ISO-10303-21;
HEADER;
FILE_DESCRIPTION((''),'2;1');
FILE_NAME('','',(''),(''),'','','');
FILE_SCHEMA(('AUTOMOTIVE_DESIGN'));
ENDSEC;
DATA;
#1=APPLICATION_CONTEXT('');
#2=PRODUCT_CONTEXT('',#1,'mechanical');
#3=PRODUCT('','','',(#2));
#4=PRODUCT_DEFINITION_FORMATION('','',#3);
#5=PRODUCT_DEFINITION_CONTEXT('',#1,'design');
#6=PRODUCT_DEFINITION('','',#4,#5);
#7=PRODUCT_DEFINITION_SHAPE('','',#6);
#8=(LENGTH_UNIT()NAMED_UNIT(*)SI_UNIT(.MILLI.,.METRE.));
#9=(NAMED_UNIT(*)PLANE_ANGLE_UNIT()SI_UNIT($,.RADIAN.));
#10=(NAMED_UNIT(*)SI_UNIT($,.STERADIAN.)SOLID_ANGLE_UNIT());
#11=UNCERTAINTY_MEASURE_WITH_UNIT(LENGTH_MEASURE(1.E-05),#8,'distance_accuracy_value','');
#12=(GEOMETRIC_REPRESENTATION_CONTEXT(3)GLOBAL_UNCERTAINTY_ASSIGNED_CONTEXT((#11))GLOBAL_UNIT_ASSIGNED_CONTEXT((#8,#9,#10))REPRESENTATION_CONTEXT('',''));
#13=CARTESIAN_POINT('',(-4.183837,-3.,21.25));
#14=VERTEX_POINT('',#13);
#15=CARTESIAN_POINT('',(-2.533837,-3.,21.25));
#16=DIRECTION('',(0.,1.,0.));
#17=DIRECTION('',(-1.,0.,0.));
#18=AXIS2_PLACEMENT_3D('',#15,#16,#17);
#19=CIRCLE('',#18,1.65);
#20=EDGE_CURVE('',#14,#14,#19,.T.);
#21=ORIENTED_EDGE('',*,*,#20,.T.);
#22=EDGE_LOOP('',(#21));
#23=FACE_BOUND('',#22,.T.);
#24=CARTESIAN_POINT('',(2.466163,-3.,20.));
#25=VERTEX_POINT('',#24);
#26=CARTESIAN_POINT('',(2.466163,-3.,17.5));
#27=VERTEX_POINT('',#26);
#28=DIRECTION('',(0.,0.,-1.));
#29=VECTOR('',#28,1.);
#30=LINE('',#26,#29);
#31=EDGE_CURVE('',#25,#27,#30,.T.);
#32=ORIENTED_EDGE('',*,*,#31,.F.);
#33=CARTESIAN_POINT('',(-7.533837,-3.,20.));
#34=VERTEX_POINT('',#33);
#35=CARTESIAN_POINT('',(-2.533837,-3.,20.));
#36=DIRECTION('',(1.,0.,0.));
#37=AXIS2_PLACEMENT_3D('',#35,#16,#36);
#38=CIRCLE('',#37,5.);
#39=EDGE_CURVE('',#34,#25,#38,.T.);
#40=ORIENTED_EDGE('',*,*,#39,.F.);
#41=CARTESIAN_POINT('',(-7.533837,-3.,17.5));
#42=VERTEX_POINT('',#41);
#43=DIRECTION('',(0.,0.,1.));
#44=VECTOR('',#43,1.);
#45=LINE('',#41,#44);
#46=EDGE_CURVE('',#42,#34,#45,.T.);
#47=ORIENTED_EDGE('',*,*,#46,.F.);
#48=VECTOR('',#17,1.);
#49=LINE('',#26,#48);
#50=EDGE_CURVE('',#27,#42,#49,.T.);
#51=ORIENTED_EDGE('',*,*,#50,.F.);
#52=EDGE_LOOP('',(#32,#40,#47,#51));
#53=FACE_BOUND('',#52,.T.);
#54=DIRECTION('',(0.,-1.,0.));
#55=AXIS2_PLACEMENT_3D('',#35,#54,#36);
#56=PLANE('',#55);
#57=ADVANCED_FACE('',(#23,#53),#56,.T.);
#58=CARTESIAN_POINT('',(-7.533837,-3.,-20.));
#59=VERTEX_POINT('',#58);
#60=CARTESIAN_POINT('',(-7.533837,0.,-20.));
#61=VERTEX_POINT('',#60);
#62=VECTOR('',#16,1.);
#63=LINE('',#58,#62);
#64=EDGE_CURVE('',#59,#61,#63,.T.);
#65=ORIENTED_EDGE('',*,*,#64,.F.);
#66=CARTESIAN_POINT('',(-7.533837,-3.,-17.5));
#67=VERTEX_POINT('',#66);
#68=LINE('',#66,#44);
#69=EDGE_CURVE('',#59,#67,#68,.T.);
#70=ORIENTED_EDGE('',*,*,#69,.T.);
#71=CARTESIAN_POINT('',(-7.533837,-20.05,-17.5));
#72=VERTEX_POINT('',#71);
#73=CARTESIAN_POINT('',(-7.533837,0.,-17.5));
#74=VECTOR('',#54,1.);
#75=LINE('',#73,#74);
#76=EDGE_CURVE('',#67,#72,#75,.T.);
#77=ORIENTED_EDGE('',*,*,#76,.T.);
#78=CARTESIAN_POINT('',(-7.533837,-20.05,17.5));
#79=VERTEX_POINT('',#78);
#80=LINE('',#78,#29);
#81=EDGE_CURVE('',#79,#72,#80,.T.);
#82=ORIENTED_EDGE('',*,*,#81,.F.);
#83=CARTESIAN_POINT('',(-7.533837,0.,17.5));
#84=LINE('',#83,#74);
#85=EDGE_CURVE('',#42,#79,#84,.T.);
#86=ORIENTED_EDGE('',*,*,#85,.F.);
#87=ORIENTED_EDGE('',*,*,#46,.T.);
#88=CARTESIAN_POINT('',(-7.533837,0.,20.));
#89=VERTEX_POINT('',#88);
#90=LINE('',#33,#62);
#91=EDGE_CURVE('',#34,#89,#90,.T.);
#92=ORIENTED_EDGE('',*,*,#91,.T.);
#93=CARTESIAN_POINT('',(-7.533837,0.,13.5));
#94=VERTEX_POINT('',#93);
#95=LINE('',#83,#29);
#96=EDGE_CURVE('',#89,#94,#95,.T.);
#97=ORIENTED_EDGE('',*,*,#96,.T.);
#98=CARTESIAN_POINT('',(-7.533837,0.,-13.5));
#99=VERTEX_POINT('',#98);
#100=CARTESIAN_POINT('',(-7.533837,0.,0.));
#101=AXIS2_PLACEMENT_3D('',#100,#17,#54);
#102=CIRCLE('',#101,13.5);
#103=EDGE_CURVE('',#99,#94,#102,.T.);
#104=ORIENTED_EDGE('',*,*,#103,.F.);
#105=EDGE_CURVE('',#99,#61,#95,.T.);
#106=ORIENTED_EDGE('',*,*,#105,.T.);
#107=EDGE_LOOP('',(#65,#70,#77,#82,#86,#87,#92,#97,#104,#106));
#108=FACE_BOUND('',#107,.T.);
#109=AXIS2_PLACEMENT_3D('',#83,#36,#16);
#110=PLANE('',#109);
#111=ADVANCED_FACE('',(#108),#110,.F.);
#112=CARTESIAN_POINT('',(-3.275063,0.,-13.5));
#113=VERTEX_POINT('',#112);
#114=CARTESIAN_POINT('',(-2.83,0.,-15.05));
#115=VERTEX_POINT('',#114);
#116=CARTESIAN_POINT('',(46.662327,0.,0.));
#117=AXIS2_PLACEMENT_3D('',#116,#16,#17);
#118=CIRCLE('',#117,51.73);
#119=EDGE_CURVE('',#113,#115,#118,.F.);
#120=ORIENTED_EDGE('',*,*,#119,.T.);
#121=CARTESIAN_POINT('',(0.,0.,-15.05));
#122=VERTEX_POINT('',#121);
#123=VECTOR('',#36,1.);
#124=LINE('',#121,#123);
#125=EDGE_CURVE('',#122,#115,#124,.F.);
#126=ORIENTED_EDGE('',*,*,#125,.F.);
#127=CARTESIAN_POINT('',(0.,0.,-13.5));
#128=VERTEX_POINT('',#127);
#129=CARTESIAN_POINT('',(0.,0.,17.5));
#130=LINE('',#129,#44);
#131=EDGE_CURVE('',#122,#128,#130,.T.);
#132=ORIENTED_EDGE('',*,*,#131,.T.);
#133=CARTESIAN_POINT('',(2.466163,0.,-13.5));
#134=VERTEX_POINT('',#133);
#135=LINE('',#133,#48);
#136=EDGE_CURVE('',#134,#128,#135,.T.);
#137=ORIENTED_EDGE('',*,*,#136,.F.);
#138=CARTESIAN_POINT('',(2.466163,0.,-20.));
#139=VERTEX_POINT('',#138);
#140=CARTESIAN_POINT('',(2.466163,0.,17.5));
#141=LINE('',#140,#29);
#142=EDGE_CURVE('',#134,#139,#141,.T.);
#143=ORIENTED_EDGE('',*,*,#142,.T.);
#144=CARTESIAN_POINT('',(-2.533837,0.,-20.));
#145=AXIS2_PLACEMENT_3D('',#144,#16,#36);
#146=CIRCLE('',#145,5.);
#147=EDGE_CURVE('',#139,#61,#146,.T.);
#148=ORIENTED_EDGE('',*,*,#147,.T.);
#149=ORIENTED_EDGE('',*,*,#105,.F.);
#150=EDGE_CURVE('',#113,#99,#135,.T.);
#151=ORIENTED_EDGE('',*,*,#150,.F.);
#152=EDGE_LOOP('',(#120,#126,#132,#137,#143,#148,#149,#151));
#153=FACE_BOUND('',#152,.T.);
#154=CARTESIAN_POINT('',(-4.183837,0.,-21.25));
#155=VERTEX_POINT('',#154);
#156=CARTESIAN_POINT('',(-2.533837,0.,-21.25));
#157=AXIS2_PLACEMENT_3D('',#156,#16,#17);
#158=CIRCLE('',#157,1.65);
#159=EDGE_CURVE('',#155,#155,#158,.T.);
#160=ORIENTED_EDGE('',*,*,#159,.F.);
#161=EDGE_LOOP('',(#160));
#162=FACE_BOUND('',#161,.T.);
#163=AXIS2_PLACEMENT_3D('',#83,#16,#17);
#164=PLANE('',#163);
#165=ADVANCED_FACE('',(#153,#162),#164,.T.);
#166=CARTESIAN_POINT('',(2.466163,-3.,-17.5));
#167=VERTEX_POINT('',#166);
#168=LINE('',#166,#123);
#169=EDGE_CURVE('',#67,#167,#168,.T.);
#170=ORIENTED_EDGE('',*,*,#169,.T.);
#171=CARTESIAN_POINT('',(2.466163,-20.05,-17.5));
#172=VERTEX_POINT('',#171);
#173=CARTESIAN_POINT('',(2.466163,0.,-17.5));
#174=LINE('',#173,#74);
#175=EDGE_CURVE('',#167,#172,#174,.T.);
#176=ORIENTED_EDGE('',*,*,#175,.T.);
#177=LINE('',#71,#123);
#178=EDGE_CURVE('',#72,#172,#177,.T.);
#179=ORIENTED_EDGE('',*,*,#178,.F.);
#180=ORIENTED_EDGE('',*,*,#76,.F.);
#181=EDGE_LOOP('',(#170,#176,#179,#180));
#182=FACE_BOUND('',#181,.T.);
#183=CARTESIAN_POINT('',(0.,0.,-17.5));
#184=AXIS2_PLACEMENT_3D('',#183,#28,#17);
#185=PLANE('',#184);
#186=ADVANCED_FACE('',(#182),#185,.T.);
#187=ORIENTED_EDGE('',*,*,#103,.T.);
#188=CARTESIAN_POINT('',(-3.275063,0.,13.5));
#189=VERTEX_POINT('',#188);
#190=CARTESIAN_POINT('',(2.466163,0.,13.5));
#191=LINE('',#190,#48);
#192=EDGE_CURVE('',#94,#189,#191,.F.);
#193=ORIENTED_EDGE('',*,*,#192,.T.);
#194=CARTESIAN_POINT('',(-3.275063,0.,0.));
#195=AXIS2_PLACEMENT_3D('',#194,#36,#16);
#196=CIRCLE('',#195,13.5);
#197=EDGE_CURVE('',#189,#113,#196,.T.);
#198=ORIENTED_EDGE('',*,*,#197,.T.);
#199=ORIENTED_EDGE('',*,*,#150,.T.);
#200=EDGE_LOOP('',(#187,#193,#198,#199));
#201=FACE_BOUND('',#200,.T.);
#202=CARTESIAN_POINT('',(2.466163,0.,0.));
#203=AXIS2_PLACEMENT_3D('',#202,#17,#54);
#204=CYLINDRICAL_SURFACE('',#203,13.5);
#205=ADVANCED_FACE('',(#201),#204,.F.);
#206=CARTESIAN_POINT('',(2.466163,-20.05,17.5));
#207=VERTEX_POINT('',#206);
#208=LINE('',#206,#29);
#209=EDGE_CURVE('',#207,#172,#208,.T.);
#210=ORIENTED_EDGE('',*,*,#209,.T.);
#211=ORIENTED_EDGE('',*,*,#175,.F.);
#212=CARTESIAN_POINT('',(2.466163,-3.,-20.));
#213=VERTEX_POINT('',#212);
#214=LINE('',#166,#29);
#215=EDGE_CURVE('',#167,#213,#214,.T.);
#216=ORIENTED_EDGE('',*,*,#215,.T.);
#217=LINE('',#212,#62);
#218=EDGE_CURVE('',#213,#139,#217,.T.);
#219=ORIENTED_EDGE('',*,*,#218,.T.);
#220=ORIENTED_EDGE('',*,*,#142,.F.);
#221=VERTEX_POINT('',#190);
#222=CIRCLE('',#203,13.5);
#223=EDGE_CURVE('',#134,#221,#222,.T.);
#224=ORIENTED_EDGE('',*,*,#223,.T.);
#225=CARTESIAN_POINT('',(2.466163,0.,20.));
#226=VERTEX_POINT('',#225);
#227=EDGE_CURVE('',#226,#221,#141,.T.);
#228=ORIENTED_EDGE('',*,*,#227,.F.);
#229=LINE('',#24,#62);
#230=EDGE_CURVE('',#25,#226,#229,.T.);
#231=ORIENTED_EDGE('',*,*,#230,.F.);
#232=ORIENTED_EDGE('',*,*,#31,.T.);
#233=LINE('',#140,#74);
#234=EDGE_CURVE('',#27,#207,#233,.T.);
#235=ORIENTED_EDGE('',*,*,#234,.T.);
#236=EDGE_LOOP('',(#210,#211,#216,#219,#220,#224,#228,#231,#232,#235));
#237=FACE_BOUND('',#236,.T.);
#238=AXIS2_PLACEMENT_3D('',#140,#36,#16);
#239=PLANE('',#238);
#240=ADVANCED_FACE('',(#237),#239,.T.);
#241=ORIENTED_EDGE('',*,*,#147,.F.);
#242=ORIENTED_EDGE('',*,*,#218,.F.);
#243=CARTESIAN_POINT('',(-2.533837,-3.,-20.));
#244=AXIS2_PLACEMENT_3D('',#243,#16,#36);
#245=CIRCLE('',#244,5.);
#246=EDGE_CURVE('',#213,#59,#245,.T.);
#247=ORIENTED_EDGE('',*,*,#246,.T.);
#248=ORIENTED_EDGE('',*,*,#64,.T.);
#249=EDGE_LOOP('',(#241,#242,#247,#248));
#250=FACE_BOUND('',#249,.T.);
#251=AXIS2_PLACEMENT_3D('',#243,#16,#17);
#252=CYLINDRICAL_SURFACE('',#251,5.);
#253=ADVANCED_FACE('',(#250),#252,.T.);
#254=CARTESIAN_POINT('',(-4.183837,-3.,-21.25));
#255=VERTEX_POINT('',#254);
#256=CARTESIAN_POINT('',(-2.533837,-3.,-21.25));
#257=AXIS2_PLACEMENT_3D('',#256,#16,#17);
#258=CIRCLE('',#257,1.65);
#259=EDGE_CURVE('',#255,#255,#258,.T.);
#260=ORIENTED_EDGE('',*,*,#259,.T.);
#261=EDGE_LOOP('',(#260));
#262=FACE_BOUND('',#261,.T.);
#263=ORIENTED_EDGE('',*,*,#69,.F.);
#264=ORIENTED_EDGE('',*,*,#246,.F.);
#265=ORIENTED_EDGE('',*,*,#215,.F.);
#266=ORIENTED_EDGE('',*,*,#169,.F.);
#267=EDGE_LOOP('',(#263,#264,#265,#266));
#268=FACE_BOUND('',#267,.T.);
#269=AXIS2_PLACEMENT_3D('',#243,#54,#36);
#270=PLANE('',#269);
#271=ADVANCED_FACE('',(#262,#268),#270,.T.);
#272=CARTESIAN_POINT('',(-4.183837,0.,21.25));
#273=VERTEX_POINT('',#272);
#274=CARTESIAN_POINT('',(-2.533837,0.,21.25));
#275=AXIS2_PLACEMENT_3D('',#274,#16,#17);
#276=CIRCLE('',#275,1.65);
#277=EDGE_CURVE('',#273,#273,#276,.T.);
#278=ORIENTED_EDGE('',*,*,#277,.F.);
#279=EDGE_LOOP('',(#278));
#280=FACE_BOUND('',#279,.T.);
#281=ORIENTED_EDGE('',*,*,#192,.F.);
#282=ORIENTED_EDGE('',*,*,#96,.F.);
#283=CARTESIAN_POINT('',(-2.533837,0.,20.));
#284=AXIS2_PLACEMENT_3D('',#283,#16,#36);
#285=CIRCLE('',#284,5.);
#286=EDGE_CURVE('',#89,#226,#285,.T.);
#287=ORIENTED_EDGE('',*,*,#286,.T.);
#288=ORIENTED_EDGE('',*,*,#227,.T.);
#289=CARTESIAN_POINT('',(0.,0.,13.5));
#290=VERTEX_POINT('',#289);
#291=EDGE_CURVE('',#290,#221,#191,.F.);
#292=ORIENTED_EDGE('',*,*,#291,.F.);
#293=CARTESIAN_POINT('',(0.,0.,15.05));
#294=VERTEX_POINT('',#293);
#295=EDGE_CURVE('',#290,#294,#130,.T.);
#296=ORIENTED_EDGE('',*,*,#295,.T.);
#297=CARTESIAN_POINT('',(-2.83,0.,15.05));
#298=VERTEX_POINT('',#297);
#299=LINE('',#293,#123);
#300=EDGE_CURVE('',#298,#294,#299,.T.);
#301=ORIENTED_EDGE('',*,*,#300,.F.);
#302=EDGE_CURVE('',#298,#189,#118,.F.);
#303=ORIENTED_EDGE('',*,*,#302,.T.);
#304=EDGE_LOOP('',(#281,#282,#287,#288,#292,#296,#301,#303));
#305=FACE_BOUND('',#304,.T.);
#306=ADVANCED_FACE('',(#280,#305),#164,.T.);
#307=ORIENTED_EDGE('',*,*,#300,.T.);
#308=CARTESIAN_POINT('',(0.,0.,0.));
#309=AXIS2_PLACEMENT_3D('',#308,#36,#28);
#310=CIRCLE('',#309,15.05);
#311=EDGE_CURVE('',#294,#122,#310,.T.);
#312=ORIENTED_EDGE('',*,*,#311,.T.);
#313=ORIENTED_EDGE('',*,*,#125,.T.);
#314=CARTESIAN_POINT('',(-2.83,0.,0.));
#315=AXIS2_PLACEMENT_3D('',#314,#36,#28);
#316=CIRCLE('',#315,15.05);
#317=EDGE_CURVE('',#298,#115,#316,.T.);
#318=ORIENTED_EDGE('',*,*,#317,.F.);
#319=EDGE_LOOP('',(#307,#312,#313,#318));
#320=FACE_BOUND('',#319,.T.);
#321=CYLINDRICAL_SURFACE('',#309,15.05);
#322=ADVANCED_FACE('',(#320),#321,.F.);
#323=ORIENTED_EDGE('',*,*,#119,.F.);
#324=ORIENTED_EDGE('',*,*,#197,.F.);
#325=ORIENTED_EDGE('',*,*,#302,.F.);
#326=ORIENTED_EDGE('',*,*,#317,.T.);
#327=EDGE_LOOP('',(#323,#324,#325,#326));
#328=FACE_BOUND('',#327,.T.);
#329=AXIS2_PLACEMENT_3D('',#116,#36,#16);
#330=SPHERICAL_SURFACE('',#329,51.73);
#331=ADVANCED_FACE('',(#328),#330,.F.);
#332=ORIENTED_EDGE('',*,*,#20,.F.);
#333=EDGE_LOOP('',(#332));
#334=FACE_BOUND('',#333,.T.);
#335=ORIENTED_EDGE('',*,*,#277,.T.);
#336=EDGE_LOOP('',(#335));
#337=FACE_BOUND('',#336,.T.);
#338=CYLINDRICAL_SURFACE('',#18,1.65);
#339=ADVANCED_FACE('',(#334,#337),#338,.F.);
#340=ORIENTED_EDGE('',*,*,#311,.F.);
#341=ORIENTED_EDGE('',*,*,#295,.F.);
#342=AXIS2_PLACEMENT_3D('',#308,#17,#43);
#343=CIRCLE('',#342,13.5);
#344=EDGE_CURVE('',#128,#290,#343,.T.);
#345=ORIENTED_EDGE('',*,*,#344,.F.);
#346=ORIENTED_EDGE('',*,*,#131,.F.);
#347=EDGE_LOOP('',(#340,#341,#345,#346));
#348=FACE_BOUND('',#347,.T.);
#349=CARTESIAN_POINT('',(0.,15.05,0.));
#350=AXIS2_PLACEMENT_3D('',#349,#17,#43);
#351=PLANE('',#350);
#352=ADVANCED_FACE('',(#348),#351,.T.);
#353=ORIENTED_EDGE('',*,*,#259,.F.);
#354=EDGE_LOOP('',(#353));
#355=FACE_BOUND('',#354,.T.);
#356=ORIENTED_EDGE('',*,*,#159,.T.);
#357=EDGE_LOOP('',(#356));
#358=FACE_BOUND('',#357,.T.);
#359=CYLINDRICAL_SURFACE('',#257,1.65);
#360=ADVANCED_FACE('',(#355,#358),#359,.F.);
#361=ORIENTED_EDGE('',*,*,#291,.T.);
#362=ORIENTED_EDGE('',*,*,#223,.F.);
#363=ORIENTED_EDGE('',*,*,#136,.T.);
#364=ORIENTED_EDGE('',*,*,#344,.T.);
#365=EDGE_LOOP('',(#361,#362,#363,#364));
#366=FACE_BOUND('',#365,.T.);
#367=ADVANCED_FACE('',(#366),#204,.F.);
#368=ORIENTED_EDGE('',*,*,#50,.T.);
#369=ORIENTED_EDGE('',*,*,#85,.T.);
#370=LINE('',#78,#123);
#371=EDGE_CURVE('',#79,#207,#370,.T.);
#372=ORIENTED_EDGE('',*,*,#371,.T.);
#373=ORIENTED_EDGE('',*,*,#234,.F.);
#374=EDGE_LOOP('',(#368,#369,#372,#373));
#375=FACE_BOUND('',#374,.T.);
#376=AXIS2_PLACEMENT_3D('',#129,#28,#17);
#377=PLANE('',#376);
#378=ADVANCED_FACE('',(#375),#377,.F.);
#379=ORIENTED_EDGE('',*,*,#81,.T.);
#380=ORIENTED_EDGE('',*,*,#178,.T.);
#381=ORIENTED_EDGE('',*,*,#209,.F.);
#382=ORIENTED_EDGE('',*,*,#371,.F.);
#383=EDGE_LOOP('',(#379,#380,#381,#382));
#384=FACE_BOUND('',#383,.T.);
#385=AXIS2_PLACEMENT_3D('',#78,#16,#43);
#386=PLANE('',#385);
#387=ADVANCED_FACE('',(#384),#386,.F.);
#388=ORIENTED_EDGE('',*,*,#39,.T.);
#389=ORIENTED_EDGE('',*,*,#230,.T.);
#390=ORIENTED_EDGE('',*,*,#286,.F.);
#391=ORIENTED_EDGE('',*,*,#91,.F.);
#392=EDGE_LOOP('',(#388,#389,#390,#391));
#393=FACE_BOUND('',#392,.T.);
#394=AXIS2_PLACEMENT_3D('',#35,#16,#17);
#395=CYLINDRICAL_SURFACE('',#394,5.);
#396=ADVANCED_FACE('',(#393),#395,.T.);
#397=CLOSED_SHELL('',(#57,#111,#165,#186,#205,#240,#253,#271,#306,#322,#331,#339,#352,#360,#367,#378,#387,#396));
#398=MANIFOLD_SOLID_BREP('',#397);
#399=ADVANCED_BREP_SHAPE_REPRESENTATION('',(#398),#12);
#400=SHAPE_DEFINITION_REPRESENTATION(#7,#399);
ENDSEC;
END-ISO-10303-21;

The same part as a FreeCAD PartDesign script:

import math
import FreeCAD as App
import Part
import Sketcher
from FreeCAD import Vector


def add_polygon(sketch, points):
    """Adds a closed chain of lines whose ends are joined by coincident constraints."""
    first, n = sketch.GeometryCount, len(points)
    for a, b in zip(points, points[1:] + points[:1]):
        sketch.addGeometry(Part.LineSegment(App.Vector(*a, 0), App.Vector(*b, 0)), False)
    for i in range(n):
        sketch.addConstraint(Sketcher.Constraint("Coincident", first + i, 2, first + (i + 1) % n, 1))

doc = App.newDocument("Part")
body = doc.addObject("PartDesign::Body", "Body")

sketch1 = doc.addObject("Sketcher::SketchObject", "Sketch")
body.addObject(sketch1)
sketch1.AttachmentSupport = (doc.XY_Plane, [""])
sketch1.MapMode = "FlatFace"
add_polygon(sketch1, [(-8, 0), (-8, -20), (2, -20), (2, 0)])
sketch1.addConstraint(Sketcher.Constraint("Vertical", 0))
sketch1.addConstraint(Sketcher.Constraint("Horizontal", 1))
sketch1.addConstraint(Sketcher.Constraint("Vertical", 2))
sketch1.addConstraint(Sketcher.Constraint("Horizontal", 3))
sketch1.addConstraint(Sketcher.Constraint("PointOnObject", 2, 2, -1))
sketch1.addConstraint(Sketcher.Constraint("DistanceX", 1, 1, 1, 2, 10.0))
sketch1.addConstraint(Sketcher.Constraint("DistanceY", 0, 2, 0, 1, 20.05))
sketch1.addConstraint(Sketcher.Constraint("DistanceX", 0, 2, -1, 1, 7.533837))
pad1 = doc.addObject("PartDesign::Pad", "Pad")
body.addObject(pad1)
pad1.Profile = sketch1
pad1.Length = 35
pad1.Midplane = True

sketch2 = doc.addObject("Sketcher::SketchObject", "Sketch001")
body.addObject(sketch2)
sketch2.AttachmentSupport = (doc.XY_Plane, [""])
sketch2.MapMode = "FlatFace"
sketch2.addGeometry(Part.LineSegment(Vector(0, 15.1, 0), Vector(-2.8, 15.1, 0)), False)
sketch2.addGeometry(Part.ArcOfCircle(Part.Circle(Vector(46.7, 0, 0), Vector(0, 0, 1), 51.7), math.radians(163.09), math.radians(180)), False)
sketch2.addGeometry(Part.LineSegment(Vector(-5.1, 0, 0), Vector(0, 0, 0)), False)
sketch2.addGeometry(Part.LineSegment(Vector(0, 0, 0), Vector(0, 15.1, 0)), False)
sketch2.addConstraint(Sketcher.Constraint("Coincident", 0, 2, 1, 1))
sketch2.addConstraint(Sketcher.Constraint("Coincident", 1, 2, 2, 1))
sketch2.addConstraint(Sketcher.Constraint("Coincident", 2, 2, 3, 1))
sketch2.addConstraint(Sketcher.Constraint("Coincident", 3, 2, 0, 1))
sketch2.addConstraint(Sketcher.Constraint("Horizontal", 0))
sketch2.addConstraint(Sketcher.Constraint("Horizontal", 2))
sketch2.addConstraint(Sketcher.Constraint("Vertical", 3))
sketch2.addConstraint(Sketcher.Constraint("Coincident", 2, 2, -1, 1))
sketch2.addConstraint(Sketcher.Constraint("PointOnObject", 1, 3, -1))
sketch2.addConstraint(Sketcher.Constraint("Radius", 1, 51.73))
sketch2.addConstraint(Sketcher.Constraint("DistanceX", 0, 2, 0, 1, 2.83))
sketch2.addConstraint(Sketcher.Constraint("DistanceY", 3, 1, 3, 2, 15.05))
groove = doc.addObject("PartDesign::Groove", "Groove")
body.addObject(groove)
groove.Profile = sketch2
groove.ReferenceAxis = (sketch2, ["H_Axis"])
groove.Angle = 360

sketch3 = doc.addObject("Sketcher::SketchObject", "Sketch002")
body.addObject(sketch3)
sketch3.AttachmentSupport = (doc.YZ_Plane, [""])
sketch3.MapMode = "FlatFace"
sketch3.AttachmentOffset = App.Placement(Vector(0, 0, -7.533837), App.Rotation())
sketch3.addGeometry(Part.Circle(Vector(0, 0, 0), Vector(0, 0, 1), 14), False)
sketch3.addConstraint(Sketcher.Constraint("Coincident", 0, 3, -1, 1))
sketch3.addConstraint(Sketcher.Constraint("Diameter", 0, 27.0))
pocket1 = doc.addObject("PartDesign::Pocket", "Pocket")
body.addObject(pocket1)
pocket1.Profile = sketch3
pocket1.Type = "ThroughAll"
pocket1.Reversed = True

sketch4 = doc.addObject("Sketcher::SketchObject", "Sketch003")
body.addObject(sketch4)
sketch4.AttachmentSupport = (doc.XZ_Plane, [""])
sketch4.MapMode = "FlatFace"
sketch4.addGeometry(Part.LineSegment(Vector(-7.5, -17.5, 0), Vector(2.5, -17.5, 0)), False)
sketch4.addGeometry(Part.LineSegment(Vector(2.5, -17.5, 0), Vector(2.5, -20, 0)), False)
sketch4.addGeometry(Part.ArcOfCircle(Part.Circle(Vector(-2.5, -20, 0), Vector(0, 0, 1), 5), math.radians(180), math.radians(360)), False)
sketch4.addGeometry(Part.LineSegment(Vector(-7.5, -20, 0), Vector(-7.5, -17.5, 0)), False)
sketch4.addGeometry(Part.Circle(Vector(-2.5, -21.2, 0), Vector(0, 0, 1), 1.6), False)
sketch4.addGeometry(Part.LineSegment(Vector(2.5, 17.5, 0), Vector(-7.5, 17.5, 0)), False)
sketch4.addGeometry(Part.LineSegment(Vector(-7.5, 17.5, 0), Vector(-7.5, 20, 0)), False)
sketch4.addGeometry(Part.ArcOfCircle(Part.Circle(Vector(-2.5, 20, 0), Vector(0, 0, 1), 5), math.radians(0), math.radians(180)), False)
sketch4.addGeometry(Part.LineSegment(Vector(2.5, 20, 0), Vector(2.5, 17.5, 0)), False)
sketch4.addGeometry(Part.Circle(Vector(-2.5, 21.2, 0), Vector(0, 0, 1), 1.6), False)
sketch4.addConstraint(Sketcher.Constraint("Coincident", 0, 2, 1, 1))
sketch4.addConstraint(Sketcher.Constraint("Tangent", 1, 2, 2, 2))
sketch4.addConstraint(Sketcher.Constraint("Tangent", 2, 1, 3, 1))
sketch4.addConstraint(Sketcher.Constraint("Coincident", 3, 2, 0, 1))
sketch4.addConstraint(Sketcher.Constraint("Coincident", 5, 2, 6, 1))
sketch4.addConstraint(Sketcher.Constraint("Tangent", 6, 2, 7, 2))
sketch4.addConstraint(Sketcher.Constraint("Tangent", 7, 1, 8, 1))
sketch4.addConstraint(Sketcher.Constraint("Coincident", 8, 2, 5, 1))
sketch4.addConstraint(Sketcher.Constraint("Horizontal", 0))
sketch4.addConstraint(Sketcher.Constraint("Vertical", 1))
sketch4.addConstraint(Sketcher.Constraint("Vertical", 3))
sketch4.addConstraint(Sketcher.Constraint("Horizontal", 5))
sketch4.addConstraint(Sketcher.Constraint("Vertical", 6))
sketch4.addConstraint(Sketcher.Constraint("Vertical", 8))
sketch4.addConstraint(Sketcher.Constraint("Equal", 2, 7))
sketch4.addConstraint(Sketcher.Constraint("Equal", 4, 9))
sketch4.addConstraint(Sketcher.Constraint("Symmetric", 2, 3, 7, 3, -1))
sketch4.addConstraint(Sketcher.Constraint("Symmetric", 4, 3, 9, 3, -1))
sketch4.addConstraint(Sketcher.Constraint("Vertical", 2, 3, 4, 3))
sketch4.addConstraint(Sketcher.Constraint("Equal", 3, 6))
sketch4.addConstraint(Sketcher.Constraint("Radius", 2, 5.0))
sketch4.addConstraint(Sketcher.Constraint("Diameter", 4, 3.3))
sketch4.addConstraint(Sketcher.Constraint("DistanceY", 1, 2, 1, 1, 2.5))
sketch4.addConstraint(Sketcher.Constraint("DistanceY", 2, 3, -1, 1, 20.0))
sketch4.addConstraint(Sketcher.Constraint("DistanceY", 4, 3, 9, 3, 42.5))
sketch4.addConstraint(Sketcher.Constraint("DistanceX", 2, 3, -1, 1, 2.533837))
pad2 = doc.addObject("PartDesign::Pad", "Pad001")
body.addObject(pad2)
pad2.Profile = sketch4
pad2.Length = 3

doc.recompute()
